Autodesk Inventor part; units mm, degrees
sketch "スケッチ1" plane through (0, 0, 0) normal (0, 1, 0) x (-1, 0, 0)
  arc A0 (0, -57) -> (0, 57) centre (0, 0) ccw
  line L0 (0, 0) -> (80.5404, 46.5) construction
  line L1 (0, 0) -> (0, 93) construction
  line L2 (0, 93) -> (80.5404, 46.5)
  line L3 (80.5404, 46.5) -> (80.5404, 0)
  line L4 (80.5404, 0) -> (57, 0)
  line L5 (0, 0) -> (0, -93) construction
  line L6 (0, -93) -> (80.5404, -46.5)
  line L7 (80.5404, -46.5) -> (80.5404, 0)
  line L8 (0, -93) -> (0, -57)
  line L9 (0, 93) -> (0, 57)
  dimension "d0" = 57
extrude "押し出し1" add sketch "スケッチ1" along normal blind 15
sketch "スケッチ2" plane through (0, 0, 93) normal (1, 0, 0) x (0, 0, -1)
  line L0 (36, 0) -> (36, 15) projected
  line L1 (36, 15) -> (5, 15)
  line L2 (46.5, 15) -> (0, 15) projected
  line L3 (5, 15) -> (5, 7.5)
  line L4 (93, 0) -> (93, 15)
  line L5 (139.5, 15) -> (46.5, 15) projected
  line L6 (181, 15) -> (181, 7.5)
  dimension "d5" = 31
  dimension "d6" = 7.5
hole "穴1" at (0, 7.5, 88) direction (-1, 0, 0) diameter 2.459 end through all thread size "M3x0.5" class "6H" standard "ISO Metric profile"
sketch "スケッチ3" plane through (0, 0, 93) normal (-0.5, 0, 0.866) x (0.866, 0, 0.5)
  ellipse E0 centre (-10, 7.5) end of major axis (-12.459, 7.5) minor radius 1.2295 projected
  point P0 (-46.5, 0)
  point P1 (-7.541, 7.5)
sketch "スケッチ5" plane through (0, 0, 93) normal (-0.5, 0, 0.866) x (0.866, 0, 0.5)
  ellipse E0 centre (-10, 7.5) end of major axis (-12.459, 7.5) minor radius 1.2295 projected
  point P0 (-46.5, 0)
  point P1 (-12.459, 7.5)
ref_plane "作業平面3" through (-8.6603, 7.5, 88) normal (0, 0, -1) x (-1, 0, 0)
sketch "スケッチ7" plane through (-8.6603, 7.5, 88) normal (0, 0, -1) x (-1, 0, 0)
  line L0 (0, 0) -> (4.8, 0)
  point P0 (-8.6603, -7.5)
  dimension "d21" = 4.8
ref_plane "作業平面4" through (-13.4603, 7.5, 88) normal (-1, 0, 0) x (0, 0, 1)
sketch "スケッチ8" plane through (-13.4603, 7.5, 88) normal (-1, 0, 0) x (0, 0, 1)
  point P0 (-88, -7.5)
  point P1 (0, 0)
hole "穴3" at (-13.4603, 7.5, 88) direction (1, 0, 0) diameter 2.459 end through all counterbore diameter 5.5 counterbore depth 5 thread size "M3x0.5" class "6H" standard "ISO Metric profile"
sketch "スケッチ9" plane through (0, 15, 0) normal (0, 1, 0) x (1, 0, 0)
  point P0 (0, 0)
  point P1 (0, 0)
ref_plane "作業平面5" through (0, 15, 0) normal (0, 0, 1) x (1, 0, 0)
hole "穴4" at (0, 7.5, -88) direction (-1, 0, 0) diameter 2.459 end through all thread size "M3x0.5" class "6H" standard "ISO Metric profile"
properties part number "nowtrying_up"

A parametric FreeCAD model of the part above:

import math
import FreeCAD as App
import Part
import Sketcher
Q = App.Units.Quantity

doc = App.newDocument("Part")
body = doc.addObject("PartDesign::Body", "Body")

# Sketch on XZ plane
sketch1 = doc.addObject("Sketcher::SketchObject", "Sketch")
body.addObject(sketch1)
sketch1.AttachmentSupport = (doc.XZ_Plane, [""])
sketch1.MapMode = "FlatFace"
sketch1.addGeometry(Part.LineSegment(App.Vector(0, -57, 0), App.Vector(0, -93, 0)), False)
sketch1.addGeometry(Part.LineSegment(App.Vector(0, -93, 0), App.Vector(-81, -46, 0)), False)
sketch1.addGeometry(Part.LineSegment(App.Vector(-81, -46, 0), App.Vector(-81, 46, 0)), False)
sketch1.addGeometry(Part.LineSegment(App.Vector(-81, 46, 0), App.Vector(0, 93, 0)), False)
sketch1.addGeometry(Part.LineSegment(App.Vector(0, 93, 0), App.Vector(0, 57, 0)), False)
sketch1.addGeometry(Part.ArcOfCircle(Part.Circle(App.Vector(0, 0, 0), App.Vector(0, 0, 1), 57), math.radians(90), math.radians(270)), False)
sketch1.addConstraint(Sketcher.Constraint("Coincident", 0, 2, 1, 1))
sketch1.addConstraint(Sketcher.Constraint("Coincident", 1, 2, 2, 1))
sketch1.addConstraint(Sketcher.Constraint("Coincident", 2, 2, 3, 1))
sketch1.addConstraint(Sketcher.Constraint("Coincident", 3, 2, 4, 1))
sketch1.addConstraint(Sketcher.Constraint("Coincident", 4, 2, 5, 1))
sketch1.addConstraint(Sketcher.Constraint("Coincident", 5, 2, 0, 1))
sketch1.addConstraint(Sketcher.Constraint("Vertical", 0))
sketch1.addConstraint(Sketcher.Constraint("Vertical", 2))
sketch1.addConstraint(Sketcher.Constraint("Vertical", 4))
sketch1.addConstraint(Sketcher.Constraint("Coincident", 5, 3, -1, 1))
sketch1.addConstraint(Sketcher.Constraint("Symmetric", 0, 2, 3, 2, -1, 1))
sketch1.addConstraint(Sketcher.Constraint("PointOnObject", 0, 2, -2))
sketch1.addConstraint(Sketcher.Constraint("Equal", 1, 3))
sketch1.addConstraint(Sketcher.Constraint("Radius", 5, 57.0))
sketch1.addConstraint(Sketcher.Constraint("DistanceY", 0, 2, 0, 1, 36.0))
sketch1.addConstraint(Sketcher.Constraint("DistanceY", 2, 1, 2, 2, 93.0))
sketch1.addConstraint(Sketcher.Constraint("Angle", 1, Q("150 deg")))
pad1 = doc.addObject("PartDesign::Pad", "Pad")
body.addObject(pad1)
pad1.Profile = sketch1
pad1.Length = 15
pad1.Reversed = True

# Sketch on YZ plane
sketch2 = doc.addObject("Sketcher::SketchObject", "Sketch001")
body.addObject(sketch2)
sketch2.AttachmentSupport = (doc.YZ_Plane, [""])
sketch2.MapMode = "FlatFace"
sketch2.addGeometry(Part.Circle(App.Vector(7.5, 88, 0), App.Vector(0, 0, 1), 1.2), False)
sketch2.addConstraint(Sketcher.Constraint("Diameter", 0, 2.459))
sketch2.addConstraint(Sketcher.Constraint("DistanceY", -1, 1, 0, 3, 88.0))
sketch2.addConstraint(Sketcher.Constraint("DistanceX", -1, 1, 0, 3, 7.5))
doc.recompute()
hole = doc.addObject("PartDesign::Hole", "Hole")
body.addObject(hole)
hole.Profile = sketch2
hole.ThreadType = "None"
hole.Diameter = 2.459
hole.DepthType = "ThroughAll"

# Sketch on YZ plane
sketch3 = doc.addObject("Sketcher::SketchObject", "Sketch002")
body.addObject(sketch3)
sketch3.AttachmentSupport = (doc.YZ_Plane, [""])
sketch3.MapMode = "FlatFace"
sketch3.AttachmentOffset = App.Placement(App.Vector(0, 0, -13.4603), App.Rotation())
sketch3.addGeometry(Part.Circle(App.Vector(7.5, 88, 0), App.Vector(0, 0, 1), 1.2), False)
sketch3.addConstraint(Sketcher.Constraint("Diameter", 0, 2.459))
sketch3.addConstraint(Sketcher.Constraint("DistanceY", -1, 1, 0, 3, 88.0))
sketch3.addConstraint(Sketcher.Constraint("DistanceX", -1, 1, 0, 3, 7.5))
doc.recompute()
hole2 = doc.addObject("PartDesign::Hole", "Hole001")
body.addObject(hole2)
hole2.Profile = sketch3
hole2.ThreadType = "None"
hole2.Diameter = 2.459
hole2.DepthType = "ThroughAll"
hole2.HoleCutType = "Counterbore"
hole2.HoleCutDiameter = 5.5
hole2.HoleCutDepth = 5
hole2.Reversed = True

# Sketch on YZ plane
sketch4 = doc.addObject("Sketcher::SketchObject", "Sketch003")
body.addObject(sketch4)
sketch4.AttachmentSupport = (doc.YZ_Plane, [""])
sketch4.MapMode = "FlatFace"
sketch4.addGeometry(Part.Circle(App.Vector(7.5, -88, 0), App.Vector(0, 0, 1), 1.2), False)
sketch4.addConstraint(Sketcher.Constraint("Diameter", 0, 2.459))
sketch4.addConstraint(Sketcher.Constraint("DistanceY", 0, 3, -1, 1, 88.0))
sketch4.addConstraint(Sketcher.Constraint("DistanceX", -1, 1, 0, 3, 7.5))
doc.recompute()
hole3 = doc.addObject("PartDesign::Hole", "Hole002")
body.addObject(hole3)
hole3.Profile = sketch4
hole3.ThreadType = "None"
hole3.Diameter = 2.459
hole3.DepthType = "ThroughAll"

doc.recompute()
